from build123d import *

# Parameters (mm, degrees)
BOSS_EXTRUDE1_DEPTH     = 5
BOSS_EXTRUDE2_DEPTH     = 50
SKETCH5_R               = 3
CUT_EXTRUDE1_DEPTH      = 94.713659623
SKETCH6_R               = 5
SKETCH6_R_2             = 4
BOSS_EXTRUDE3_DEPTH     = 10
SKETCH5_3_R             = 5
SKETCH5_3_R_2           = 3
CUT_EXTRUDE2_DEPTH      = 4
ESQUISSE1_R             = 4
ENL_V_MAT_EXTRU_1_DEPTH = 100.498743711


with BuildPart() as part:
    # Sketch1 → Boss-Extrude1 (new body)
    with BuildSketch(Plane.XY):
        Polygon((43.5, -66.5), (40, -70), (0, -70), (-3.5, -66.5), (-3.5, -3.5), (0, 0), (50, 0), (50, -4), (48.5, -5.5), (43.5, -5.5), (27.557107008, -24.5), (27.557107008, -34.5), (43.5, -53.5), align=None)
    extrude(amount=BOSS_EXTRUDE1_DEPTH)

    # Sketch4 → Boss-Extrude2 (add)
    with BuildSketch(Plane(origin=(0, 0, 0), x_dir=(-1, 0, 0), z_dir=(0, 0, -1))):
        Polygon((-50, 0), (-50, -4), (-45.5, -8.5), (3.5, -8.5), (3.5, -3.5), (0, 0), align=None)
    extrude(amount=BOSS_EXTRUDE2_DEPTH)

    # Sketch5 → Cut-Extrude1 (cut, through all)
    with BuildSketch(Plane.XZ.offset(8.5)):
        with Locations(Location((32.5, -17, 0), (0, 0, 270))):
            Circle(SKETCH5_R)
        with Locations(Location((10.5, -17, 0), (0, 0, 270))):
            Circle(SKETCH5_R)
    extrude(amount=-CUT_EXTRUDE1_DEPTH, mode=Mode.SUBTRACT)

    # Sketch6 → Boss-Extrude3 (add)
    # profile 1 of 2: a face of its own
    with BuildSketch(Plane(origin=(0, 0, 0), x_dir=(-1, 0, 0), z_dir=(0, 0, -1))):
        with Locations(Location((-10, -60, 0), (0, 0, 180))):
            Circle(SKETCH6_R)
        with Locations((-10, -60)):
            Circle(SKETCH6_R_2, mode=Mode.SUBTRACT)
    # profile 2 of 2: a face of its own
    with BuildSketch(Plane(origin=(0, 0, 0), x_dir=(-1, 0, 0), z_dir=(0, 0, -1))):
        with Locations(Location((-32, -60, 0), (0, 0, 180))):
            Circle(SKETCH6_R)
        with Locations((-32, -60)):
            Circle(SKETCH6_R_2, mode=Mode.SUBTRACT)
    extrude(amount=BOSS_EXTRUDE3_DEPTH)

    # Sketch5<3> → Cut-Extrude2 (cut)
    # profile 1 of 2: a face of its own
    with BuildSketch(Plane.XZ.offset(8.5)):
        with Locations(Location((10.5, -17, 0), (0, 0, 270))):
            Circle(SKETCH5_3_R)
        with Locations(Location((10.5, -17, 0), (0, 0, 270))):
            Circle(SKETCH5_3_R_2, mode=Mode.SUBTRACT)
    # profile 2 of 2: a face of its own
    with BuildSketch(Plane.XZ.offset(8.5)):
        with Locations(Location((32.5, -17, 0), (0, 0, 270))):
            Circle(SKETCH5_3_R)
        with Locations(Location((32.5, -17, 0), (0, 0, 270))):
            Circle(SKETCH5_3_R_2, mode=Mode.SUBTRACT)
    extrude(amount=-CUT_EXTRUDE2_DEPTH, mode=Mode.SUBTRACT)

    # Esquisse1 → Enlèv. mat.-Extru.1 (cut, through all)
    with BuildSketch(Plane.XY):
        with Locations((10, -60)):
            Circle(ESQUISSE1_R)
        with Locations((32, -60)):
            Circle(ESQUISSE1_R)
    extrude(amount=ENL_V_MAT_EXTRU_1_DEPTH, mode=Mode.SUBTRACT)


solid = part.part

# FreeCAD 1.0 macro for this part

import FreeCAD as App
import Part
import Sketcher
Q = App.Units.Quantity


def add_polygon(sketch, points):
    """Adds a closed chain of lines whose ends are joined by coincident constraints."""
    first, n = sketch.GeometryCount, len(points)
    for a, b in zip(points, points[1:] + points[:1]):
        sketch.addGeometry(Part.LineSegment(App.Vector(*a, 0), App.Vector(*b, 0)), False)
    for i in range(n):
        sketch.addConstraint(Sketcher.Constraint("Coincident", first + i, 2, first + (i + 1) % n, 1))

doc = App.newDocument("Part")
body = doc.addObject("PartDesign::Body", "Body")

sketch1 = body.newObject("Sketcher::SketchObject", "Sketch")
sketch1.AttachmentSupport = (doc.getObject("XY_Plane"), [""])
sketch1.MapMode = "FlatFace"
add_polygon(sketch1, [(40, -70), (43.5, -66.5), (43.5, -53.5), (27.557107, -34.5), (27.557107, -24.5), (43.5, -5.5), (48.5, -5.5), (50, -4), (50, 0), (0, 0), (-3.5, -3.5), (-3.5, -66.5), (0, -70)])
sketch1.addConstraint([
    Sketcher.Constraint("Vertical", 1),
    Sketcher.Constraint("Vertical", 3),
    Sketcher.Constraint("Horizontal", 5),
    Sketcher.Constraint("Vertical", 7),
    Sketcher.Constraint("Horizontal", 8),
    Sketcher.Constraint("Vertical", 10),
    Sketcher.Constraint("Horizontal", 12),
    Sketcher.Constraint("Coincident", 8, 2, -1, 1),
    Sketcher.Constraint("PointOnObject", 11, 2, -2),
    Sketcher.Constraint("Parallel", 0, 6),
    Sketcher.Constraint("Parallel", 6, 9),
    Sketcher.Constraint("Perpendicular", 9, 11),
    Sketcher.Constraint("Horizontal", 0, 2, 10, 2),
    Sketcher.Constraint("Vertical", 1, 2, 4, 2),
    Sketcher.Constraint("Equal", 2, 4),
    Sketcher.Constraint("Equal", 0, 9),
    Sketcher.Constraint("DistanceX", 5, 1, 5, 2, Q("5 mm")),
    Sketcher.Constraint("DistanceX", 8, 2, 8, 1, Q("50 mm")),
    Sketcher.Constraint("DistanceX", 12, 1, 12, 2, Q("40 mm")),
    Sketcher.Constraint("DistanceY", 1, 1, 1, 2, Q("13 mm")),
    Sketcher.Constraint("DistanceY", 3, 1, 3, 2, Q("10 mm")),
    Sketcher.Constraint("DistanceY", 7, 1, 7, 2, Q("4 mm")),
    Sketcher.Constraint("DistanceY", 10, 2, 10, 1, Q("63 mm")),
    Sketcher.Constraint("Angle", 2, Q("130 deg")),
    Sketcher.Constraint("DistanceY", 11, 2, -1, 1, Q("70 mm")),
])
pad1 = body.newObject("PartDesign::Pad", "Pad")
pad1.Profile = sketch1
pad1.Length = 5

sketch2 = body.newObject("Sketcher::SketchObject", "Sketch001")
sketch2.AttachmentSupport = (doc.getObject("XY_Plane"), [""])
sketch2.MapMode = "FlatFace"
add_polygon(sketch2, [(50, 0), (50, -4), (45.5, -8.5), (-3.5, -8.5), (-3.5, -3.5), (0, 0)])
sketch2.addConstraint([
    Sketcher.Constraint("Vertical", 0),
    Sketcher.Constraint("Horizontal", 2),
    Sketcher.Constraint("Vertical", 3),
    Sketcher.Constraint("Horizontal", 5),
    Sketcher.Constraint("Coincident", 4, 2, -1, 1),
    Sketcher.Constraint("Parallel", 1, 4),
    Sketcher.Constraint("DistanceX", 2, 2, 2, 1, Q("49 mm")),
    Sketcher.Constraint("DistanceX", 5, 1, 5, 2, Q("50 mm")),
    Sketcher.Constraint("DistanceY", 0, 2, 0, 1, Q("4 mm")),
    Sketcher.Constraint("DistanceY", 3, 1, 3, 2, Q("5 mm")),
    Sketcher.Constraint("DistanceX", -1, 1, 1, 2, Q("45.5 mm")),
])
pad2 = body.newObject("PartDesign::Pad", "Pad001")
pad2.Profile = sketch2
pad2.Length = 50
pad2.Reversed = True

sketch3 = body.newObject("Sketcher::SketchObject", "Sketch002")
sketch3.AttachmentSupport = (doc.getObject("XZ_Plane"), [""])
sketch3.MapMode = "FlatFace"
sketch3.AttachmentOffset = App.Placement(App.Vector(0, 0, 8.5), App.Rotation())
sketch3.addGeometry([
    Part.Circle(App.Vector(32.5, -17, 0), App.Vector(0, 0, 1), 3),
    Part.Circle(App.Vector(10.5, -17, 0), App.Vector(0, 0, 1), 3),
], False)
sketch3.addConstraint([
    Sketcher.Constraint("Equal", 0, 1),
    Sketcher.Constraint("Horizontal", 0, 3, 1, 3),
    Sketcher.Constraint("Diameter", 0, Q("6 mm")),
    Sketcher.Constraint("DistanceY", 0, 3, -1, 1, Q("17 mm")),
    Sketcher.Constraint("DistanceX", 1, 3, 0, 3, Q("22 mm")),
    Sketcher.Constraint("DistanceX", -1, 1, 0, 3, Q("32.5 mm")),
])
pocket1 = body.newObject("PartDesign::Pocket", "Pocket")
pocket1.Profile = sketch3
pocket1.Type = "ThroughAll"

sketch4 = body.newObject("Sketcher::SketchObject", "Sketch003")
sketch4.AttachmentSupport = (doc.getObject("XY_Plane"), [""])
sketch4.MapMode = "FlatFace"
sketch4.addGeometry([
    Part.Circle(App.Vector(10, -60, 0), App.Vector(0, 0, 1), 5),
    Part.Circle(App.Vector(10, -60, 0), App.Vector(0, 0, 1), 4),
    Part.Circle(App.Vector(32, -60, 0), App.Vector(0, 0, 1), 5),
    Part.Circle(App.Vector(32, -60, 0), App.Vector(0, 0, 1), 4),
], False)
sketch4.addConstraint([
    Sketcher.Constraint("Coincident", 1, 3, 0, 3),
    Sketcher.Constraint("Coincident", 3, 3, 2, 3),
    Sketcher.Constraint("Equal", 0, 2),
    Sketcher.Constraint("Equal", 1, 3),
    Sketcher.Constraint("Horizontal", 1, 3, 2, 3),
    Sketcher.Constraint("Diameter", 0, Q("10 mm")),
    Sketcher.Constraint("Diameter", 1, Q("8 mm")),
    Sketcher.Constraint("DistanceX", -1, 1, 0, 3, Q("10 mm")),
    Sketcher.Constraint("DistanceY", 0, 3, -1, 1, Q("60 mm")),
    Sketcher.Constraint("DistanceX", -1, 1, 2, 3, Q("32 mm")),
])
pad3 = body.newObject("PartDesign::Pad", "Pad002")
pad3.Profile = sketch4
pad3.Length = 10
pad3.Reversed = True

sketch5 = body.newObject("Sketcher::SketchObject", "Sketch004")
sketch5.AttachmentSupport = (doc.getObject("XZ_Plane"), [""])
sketch5.MapMode = "FlatFace"
sketch5.AttachmentOffset = App.Placement(App.Vector(0, 0, 8.5), App.Rotation())
sketch5.addGeometry([
    Part.Circle(App.Vector(10.5, -17, 0), App.Vector(0, 0, 1), 5),
    Part.Circle(App.Vector(10.5, -17, 0), App.Vector(0, 0, 1), 3),
    Part.Circle(App.Vector(32.5, -17, 0), App.Vector(0, 0, 1), 5),
    Part.Circle(App.Vector(32.5, -17, 0), App.Vector(0, 0, 1), 3),
], False)
sketch5.addConstraint([
    Sketcher.Constraint("Coincident", 1, 3, 0, 3),
    Sketcher.Constraint("Coincident", 3, 3, 2, 3),
    Sketcher.Constraint("Equal", 0, 2),
    Sketcher.Constraint("Equal", 1, 3),
    Sketcher.Constraint("Horizontal", 1, 3, 2, 3),
    Sketcher.Constraint("Diameter", 0, Q("10 mm")),
    Sketcher.Constraint("Diameter", 1, Q("6 mm")),
    Sketcher.Constraint("DistanceY", 0, 3, -1, 1, Q("17 mm")),
    Sketcher.Constraint("DistanceX", 0, 3, 2, 3, Q("22 mm")),
    Sketcher.Constraint("DistanceX", -1, 1, 0, 3, Q("10.5 mm")),
])
pocket2 = body.newObject("PartDesign::Pocket", "Pocket001")
pocket2.Profile = sketch5
pocket2.Length = 4

sketch6 = body.newObject("Sketcher::SketchObject", "Sketch005")
sketch6.AttachmentSupport = (doc.getObject("XY_Plane"), [""])
sketch6.MapMode = "FlatFace"
sketch6.addGeometry([
    Part.Circle(App.Vector(10, -60, 0), App.Vector(0, 0, 1), 4),
    Part.Circle(App.Vector(32, -60, 0), App.Vector(0, 0, 1), 4),
], False)
sketch6.addConstraint([
    Sketcher.Constraint("Equal", 0, 1),
    Sketcher.Constraint("Horizontal", 0, 3, 1, 3),
    Sketcher.Constraint("Diameter", 0, Q("8 mm")),
    Sketcher.Constraint("DistanceX", -1, 1, 0, 3, Q("10 mm")),
    Sketcher.Constraint("DistanceY", 0, 3, -1, 1, Q("60 mm")),
    Sketcher.Constraint("DistanceX", -1, 1, 1, 3, Q("32 mm")),
])
pocket3 = body.newObject("PartDesign::Pocket", "Pocket002")
pocket3.Profile = sketch6
pocket3.Type = "ThroughAll"
pocket3.Reversed = True

doc.recompute()
